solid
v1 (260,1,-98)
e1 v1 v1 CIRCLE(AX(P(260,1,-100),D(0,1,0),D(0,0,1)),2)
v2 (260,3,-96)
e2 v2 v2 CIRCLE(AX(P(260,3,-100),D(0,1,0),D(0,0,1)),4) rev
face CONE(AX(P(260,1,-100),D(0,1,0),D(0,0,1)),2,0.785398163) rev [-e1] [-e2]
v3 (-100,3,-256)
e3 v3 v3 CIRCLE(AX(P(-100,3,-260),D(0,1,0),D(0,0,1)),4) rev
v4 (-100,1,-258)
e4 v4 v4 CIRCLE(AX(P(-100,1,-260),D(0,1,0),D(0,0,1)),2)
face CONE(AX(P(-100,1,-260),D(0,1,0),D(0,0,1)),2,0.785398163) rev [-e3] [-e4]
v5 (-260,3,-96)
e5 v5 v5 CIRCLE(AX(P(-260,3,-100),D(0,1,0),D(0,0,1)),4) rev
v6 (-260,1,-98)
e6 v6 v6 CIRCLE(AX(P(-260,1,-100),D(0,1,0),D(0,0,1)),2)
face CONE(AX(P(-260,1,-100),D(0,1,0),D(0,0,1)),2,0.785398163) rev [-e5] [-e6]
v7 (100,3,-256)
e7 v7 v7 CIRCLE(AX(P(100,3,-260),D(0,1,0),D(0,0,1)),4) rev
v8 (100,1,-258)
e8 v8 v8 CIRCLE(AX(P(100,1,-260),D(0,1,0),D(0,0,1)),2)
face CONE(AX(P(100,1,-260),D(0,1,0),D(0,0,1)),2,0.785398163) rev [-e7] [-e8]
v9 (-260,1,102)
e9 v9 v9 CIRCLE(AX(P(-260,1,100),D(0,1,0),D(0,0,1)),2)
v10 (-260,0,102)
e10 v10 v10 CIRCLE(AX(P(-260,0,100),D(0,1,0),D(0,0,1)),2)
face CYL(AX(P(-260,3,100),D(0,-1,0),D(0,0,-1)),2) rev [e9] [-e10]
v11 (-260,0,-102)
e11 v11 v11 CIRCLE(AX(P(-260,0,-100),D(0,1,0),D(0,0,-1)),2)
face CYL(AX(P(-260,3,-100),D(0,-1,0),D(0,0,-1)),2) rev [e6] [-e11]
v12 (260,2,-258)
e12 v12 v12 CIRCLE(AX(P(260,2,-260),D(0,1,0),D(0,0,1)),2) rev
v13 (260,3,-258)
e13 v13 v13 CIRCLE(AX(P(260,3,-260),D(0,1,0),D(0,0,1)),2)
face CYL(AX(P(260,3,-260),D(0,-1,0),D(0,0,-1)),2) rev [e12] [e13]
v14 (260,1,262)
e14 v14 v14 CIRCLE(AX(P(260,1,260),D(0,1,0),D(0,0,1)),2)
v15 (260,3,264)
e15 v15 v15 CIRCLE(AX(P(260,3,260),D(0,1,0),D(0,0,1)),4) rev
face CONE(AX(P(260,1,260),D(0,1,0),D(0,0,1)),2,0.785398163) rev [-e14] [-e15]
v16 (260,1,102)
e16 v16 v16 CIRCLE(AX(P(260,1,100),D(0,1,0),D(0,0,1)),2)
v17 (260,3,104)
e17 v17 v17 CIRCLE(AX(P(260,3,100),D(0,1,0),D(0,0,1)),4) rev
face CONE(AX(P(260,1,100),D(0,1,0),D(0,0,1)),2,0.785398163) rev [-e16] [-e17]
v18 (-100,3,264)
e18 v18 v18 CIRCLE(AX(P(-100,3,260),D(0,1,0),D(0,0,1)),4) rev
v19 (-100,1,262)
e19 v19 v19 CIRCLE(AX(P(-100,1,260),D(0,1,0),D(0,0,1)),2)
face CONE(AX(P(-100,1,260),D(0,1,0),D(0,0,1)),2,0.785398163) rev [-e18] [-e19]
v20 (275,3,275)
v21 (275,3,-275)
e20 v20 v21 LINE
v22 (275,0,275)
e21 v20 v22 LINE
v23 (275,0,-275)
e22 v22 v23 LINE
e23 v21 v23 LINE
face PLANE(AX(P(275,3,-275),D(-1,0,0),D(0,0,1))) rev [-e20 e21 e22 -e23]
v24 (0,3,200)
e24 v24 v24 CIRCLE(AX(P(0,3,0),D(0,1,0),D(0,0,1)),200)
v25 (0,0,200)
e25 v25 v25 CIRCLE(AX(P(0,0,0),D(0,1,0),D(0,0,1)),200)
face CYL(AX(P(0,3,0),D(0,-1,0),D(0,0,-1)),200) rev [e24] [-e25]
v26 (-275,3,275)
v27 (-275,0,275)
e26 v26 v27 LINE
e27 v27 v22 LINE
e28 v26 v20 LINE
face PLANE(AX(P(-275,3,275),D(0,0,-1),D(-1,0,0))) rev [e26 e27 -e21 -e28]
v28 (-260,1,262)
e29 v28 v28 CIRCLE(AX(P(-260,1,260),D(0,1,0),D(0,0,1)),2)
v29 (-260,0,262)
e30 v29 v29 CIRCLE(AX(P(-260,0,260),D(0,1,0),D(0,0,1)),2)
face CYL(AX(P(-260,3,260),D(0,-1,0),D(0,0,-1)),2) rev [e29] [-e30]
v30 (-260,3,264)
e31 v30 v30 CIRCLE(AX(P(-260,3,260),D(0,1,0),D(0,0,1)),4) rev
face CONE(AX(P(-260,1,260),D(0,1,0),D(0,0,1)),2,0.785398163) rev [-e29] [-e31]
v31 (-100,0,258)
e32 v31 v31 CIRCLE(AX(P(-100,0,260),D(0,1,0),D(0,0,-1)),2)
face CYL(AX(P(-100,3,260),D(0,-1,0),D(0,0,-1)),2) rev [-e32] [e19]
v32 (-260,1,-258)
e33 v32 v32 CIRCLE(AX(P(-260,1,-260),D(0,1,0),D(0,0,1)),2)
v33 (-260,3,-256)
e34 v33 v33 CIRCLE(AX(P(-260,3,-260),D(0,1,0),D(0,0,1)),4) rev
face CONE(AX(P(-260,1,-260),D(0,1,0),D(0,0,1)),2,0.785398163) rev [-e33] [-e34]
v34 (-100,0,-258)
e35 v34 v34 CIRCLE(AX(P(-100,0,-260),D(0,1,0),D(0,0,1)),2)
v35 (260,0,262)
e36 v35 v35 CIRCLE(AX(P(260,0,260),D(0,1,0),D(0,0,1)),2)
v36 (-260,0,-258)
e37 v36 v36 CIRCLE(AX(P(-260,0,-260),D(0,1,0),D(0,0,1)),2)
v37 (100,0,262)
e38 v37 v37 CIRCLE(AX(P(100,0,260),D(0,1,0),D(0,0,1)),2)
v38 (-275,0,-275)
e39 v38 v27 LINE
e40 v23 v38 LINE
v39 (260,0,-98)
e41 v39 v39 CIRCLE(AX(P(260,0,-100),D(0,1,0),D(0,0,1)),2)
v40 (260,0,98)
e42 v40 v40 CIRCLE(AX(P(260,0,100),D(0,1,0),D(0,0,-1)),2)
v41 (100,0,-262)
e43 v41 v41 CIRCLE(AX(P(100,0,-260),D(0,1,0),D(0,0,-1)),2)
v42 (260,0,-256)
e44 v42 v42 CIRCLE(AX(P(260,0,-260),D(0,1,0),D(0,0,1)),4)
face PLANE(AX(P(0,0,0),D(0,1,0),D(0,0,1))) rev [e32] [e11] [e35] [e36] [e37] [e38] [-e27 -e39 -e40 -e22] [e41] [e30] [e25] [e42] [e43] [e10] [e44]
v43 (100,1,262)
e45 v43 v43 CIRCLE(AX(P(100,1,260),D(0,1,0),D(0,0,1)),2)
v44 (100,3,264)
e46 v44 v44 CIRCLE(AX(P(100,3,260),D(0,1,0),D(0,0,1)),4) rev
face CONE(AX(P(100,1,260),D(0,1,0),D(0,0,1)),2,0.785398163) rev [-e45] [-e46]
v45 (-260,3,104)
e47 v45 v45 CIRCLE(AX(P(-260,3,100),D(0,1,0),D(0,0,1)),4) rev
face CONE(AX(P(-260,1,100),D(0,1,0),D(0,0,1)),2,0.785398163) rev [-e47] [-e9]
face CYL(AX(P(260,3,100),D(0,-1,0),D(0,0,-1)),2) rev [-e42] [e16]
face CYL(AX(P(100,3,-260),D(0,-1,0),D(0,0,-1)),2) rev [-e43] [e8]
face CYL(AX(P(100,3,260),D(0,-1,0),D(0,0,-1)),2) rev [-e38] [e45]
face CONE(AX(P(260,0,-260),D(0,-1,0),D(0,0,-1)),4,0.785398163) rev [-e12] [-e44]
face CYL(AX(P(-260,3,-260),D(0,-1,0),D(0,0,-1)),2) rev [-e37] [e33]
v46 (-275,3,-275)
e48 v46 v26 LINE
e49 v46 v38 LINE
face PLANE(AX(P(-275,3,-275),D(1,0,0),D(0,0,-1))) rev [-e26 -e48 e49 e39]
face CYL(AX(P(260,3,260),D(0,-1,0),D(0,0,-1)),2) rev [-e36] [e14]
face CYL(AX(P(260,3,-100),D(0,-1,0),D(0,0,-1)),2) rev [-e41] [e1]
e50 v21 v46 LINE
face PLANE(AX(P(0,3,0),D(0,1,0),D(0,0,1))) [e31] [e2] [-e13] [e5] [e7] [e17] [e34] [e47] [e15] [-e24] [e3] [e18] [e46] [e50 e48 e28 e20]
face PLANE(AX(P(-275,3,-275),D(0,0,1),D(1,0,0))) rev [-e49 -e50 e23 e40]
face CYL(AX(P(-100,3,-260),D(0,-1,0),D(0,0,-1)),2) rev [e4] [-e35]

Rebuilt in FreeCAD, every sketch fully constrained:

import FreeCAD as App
import Part
import Sketcher

V = App.Vector


def edges_at(feature, points):
    """Names of the edges that pass closest to the given points."""
    edges = feature.Shape.Edges
    near = lambda p: min(range(len(edges)), key=lambda i: edges[i].distToShape(Part.Vertex(*p))[0])
    return sorted({f"Edge{near(p) + 1}" for p in points})


def add_polygon(sketch, points):
    """Adds a closed chain of lines whose ends are joined by coincident constraints."""
    first, n = sketch.GeometryCount, len(points)
    for a, b in zip(points, points[1:] + points[:1]):
        sketch.addGeometry(Part.LineSegment(App.Vector(*a, 0), App.Vector(*b, 0)), False)
    for i in range(n):
        sketch.addConstraint(Sketcher.Constraint("Coincident", first + i, 2, first + (i + 1) % n, 1))

doc = App.newDocument("Part")
body = doc.addObject("PartDesign::Body", "Body")

# Sketch on XZ plane
sketch1 = doc.addObject("Sketcher::SketchObject", "Sketch")
body.addObject(sketch1)
sketch1.AttachmentSupport = (doc.XZ_Plane, [""])
sketch1.MapMode = "FlatFace"
add_polygon(sketch1, [(-275, -275), (-275, 275), (275, 275), (275, -275)])  # lines 0-3
sketch1.addGeometry(Part.Circle(V(0, 0, 0), V(0, 0, 1), 200), False)  # 4
sketch1.addConstraint(Sketcher.Constraint("Vertical", 0))
sketch1.addConstraint(Sketcher.Constraint("Horizontal", 1))
sketch1.addConstraint(Sketcher.Constraint("Vertical", 2))
sketch1.addConstraint(Sketcher.Constraint("Horizontal", 3))
sketch1.addConstraint(Sketcher.Constraint("Coincident", 4, 3, -1, 1))
sketch1.addConstraint(Sketcher.Constraint("Symmetric", 0, 2, 2, 2, -1, 1))
sketch1.addConstraint(Sketcher.Constraint("Equal", 3, 0))
sketch1.addConstraint(Sketcher.Constraint("Diameter", 4, 400.0))
sketch1.addConstraint(Sketcher.Constraint("DistanceX", 1, 1, 1, 2, 550.0))
pad1 = doc.addObject("PartDesign::Pad", "Pad")
body.addObject(pad1)
pad1.Profile = sketch1
pad1.Length = 3
pad1.Reversed = True

# Sketch on XZ plane
sketch2 = doc.addObject("Sketcher::SketchObject", "Sketch001")
body.addObject(sketch2)
sketch2.AttachmentSupport = (doc.XZ_Plane, [""])
sketch2.MapMode = "FlatFace"
sketch2.addGeometry(Part.Circle(V(-260, -260, 0), V(0, 0, 1), 2), False)
sketch2.addGeometry(Part.Circle(V(-100, -260, 0), V(0, 0, 1), 2), False)
sketch2.addGeometry(Part.Circle(V(100, -260, 0), V(0, 0, 1), 2), False)
sketch2.addGeometry(Part.Circle(V(260, 100, 0), V(0, 0, 1), 2), False)
sketch2.addGeometry(Part.Circle(V(260, -100, 0), V(0, 0, 1), 2), False)
sketch2.addGeometry(Part.Circle(V(260, -260, 0), V(0, 0, 1), 2), False)
sketch2.addGeometry(Part.Circle(V(-100, 260, 0), V(0, 0, 1), 2), False)
sketch2.addGeometry(Part.Circle(V(100, 260, 0), V(0, 0, 1), 2), False)
sketch2.addGeometry(Part.Circle(V(260, 260, 0), V(0, 0, 1), 2), False)
sketch2.addGeometry(Part.Circle(V(-260, -100, 0), V(0, 0, 1), 2), False)
sketch2.addGeometry(Part.Circle(V(-260, 100, 0), V(0, 0, 1), 2), False)
sketch2.addGeometry(Part.Circle(V(-260, 260, 0), V(0, 0, 1), 2), False)
sketch2.addConstraint(Sketcher.Constraint("Equal", 0, 1))
sketch2.addConstraint(Sketcher.Constraint("Equal", 1, 2))
sketch2.addConstraint(Sketcher.Constraint("Equal", 2, 3))
sketch2.addConstraint(Sketcher.Constraint("Equal", 3, 4))
sketch2.addConstraint(Sketcher.Constraint("Equal", 4, 5))
sketch2.addConstraint(Sketcher.Constraint("Equal", 5, 6))
sketch2.addConstraint(Sketcher.Constraint("Equal", 6, 7))
sketch2.addConstraint(Sketcher.Constraint("Equal", 7, 8))
sketch2.addConstraint(Sketcher.Constraint("Equal", 8, 9))
sketch2.addConstraint(Sketcher.Constraint("Equal", 9, 10))
sketch2.addConstraint(Sketcher.Constraint("Equal", 10, 11))
sketch2.addConstraint(Sketcher.Constraint("Symmetric", 2, 3, 6, 3, -1, 1))
sketch2.addConstraint(Sketcher.Constraint("Symmetric", 1, 3, 7, 3, -1, 1))
sketch2.addConstraint(Sketcher.Constraint("Symmetric", 0, 3, 8, 3, -1, 1))
sketch2.addConstraint(Sketcher.Constraint("Symmetric", 3, 3, 9, 3, -1, 1))
sketch2.addConstraint(Sketcher.Constraint("Symmetric", 4, 3, 10, 3, -1, 1))
sketch2.addConstraint(Sketcher.Constraint("Symmetric", 5, 3, 11, 3, -1, 1))
sketch2.addConstraint(Sketcher.Constraint("Symmetric", 1, 3, 2, 3, -2))
sketch2.addConstraint(Sketcher.Constraint("Symmetric", 0, 3, 5, 3, -2))
sketch2.addConstraint(Sketcher.Constraint("Symmetric", 4, 3, 9, 3, -2))
sketch2.addConstraint(Sketcher.Constraint("Horizontal", 0, 3, 1, 3))
sketch2.addConstraint(Sketcher.Constraint("Vertical", 4, 3, 5, 3))
sketch2.addConstraint(Sketcher.Constraint("Diameter", 0, 4.0))
sketch2.addConstraint(Sketcher.Constraint("DistanceX", 0, 3, -1, 1, 260.0))
sketch2.addConstraint(Sketcher.Constraint("DistanceY", 0, 3, -1, 1, 260.0))
sketch2.addConstraint(Sketcher.Constraint("DistanceX", 1, 3, -1, 1, 100.0))
sketch2.addConstraint(Sketcher.Constraint("DistanceY", -1, 1, 3, 3, 100.0))
pocket1 = doc.addObject("PartDesign::Pocket", "Pocket")
body.addObject(pocket1)
pocket1.Profile = sketch2
pocket1.Type = "ThroughAll"
doc.recompute()

chamfer = doc.addObject("PartDesign::Chamfer", "Chamfer")
body.addObject(chamfer)
chamfer.Base = (pocket1, edges_at(pocket1, [
    (-260, 3, -98),
    (-260, 3, 98),
    (-260, 3, 258),
    (-100, 3, 262),
    (100, 3, 258),
    (260, 3, 258),
    (260, 3, 102),
    (260, 3, -102),
    (260, 0, -262),
    (100, 3, -258),
    (-100, 3, -262),
    (-260, 3, -262),
]))
chamfer.Size = 2

doc.recompute()
